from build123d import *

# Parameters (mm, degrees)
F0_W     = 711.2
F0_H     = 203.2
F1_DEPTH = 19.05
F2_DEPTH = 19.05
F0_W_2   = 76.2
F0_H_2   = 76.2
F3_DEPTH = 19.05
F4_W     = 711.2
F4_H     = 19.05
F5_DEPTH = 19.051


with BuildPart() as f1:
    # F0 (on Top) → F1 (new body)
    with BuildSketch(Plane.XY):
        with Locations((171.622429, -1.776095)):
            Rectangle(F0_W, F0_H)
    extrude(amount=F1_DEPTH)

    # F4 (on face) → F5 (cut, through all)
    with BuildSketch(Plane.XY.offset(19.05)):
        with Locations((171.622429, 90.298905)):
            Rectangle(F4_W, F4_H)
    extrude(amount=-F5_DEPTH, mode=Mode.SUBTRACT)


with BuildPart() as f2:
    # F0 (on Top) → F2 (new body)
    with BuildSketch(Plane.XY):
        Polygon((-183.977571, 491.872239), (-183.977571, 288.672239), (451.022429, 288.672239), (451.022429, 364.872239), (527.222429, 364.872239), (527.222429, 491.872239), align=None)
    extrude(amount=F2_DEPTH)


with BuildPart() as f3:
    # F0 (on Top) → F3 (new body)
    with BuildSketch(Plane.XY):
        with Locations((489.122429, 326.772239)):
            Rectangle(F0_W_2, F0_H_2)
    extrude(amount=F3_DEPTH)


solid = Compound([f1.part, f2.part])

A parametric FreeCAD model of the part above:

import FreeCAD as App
import Part
import Sketcher
Q = App.Units.Quantity


def add_polygon(sketch, points):
    """Adds a closed chain of lines whose ends are joined by coincident constraints."""
    first, n = sketch.GeometryCount, len(points)
    for a, b in zip(points, points[1:] + points[:1]):
        sketch.addGeometry(Part.LineSegment(App.Vector(*a, 0), App.Vector(*b, 0)), False)
    for i in range(n):
        sketch.addConstraint(Sketcher.Constraint("Coincident", first + i, 2, first + (i + 1) % n, 1))

doc = App.newDocument("Part")
body = doc.addObject("PartDesign::Body", "Body")

sketch1 = body.newObject("Sketcher::SketchObject", "Sketch")
sketch1.AttachmentSupport = (doc.getObject("XY_Plane"), [""])
sketch1.MapMode = "FlatFace"
add_polygon(sketch1, [(-183.977571, 99.823905), (-183.977571, -103.376095), (527.222429, -103.376095), (527.222429, 99.823905)])
sketch1.addConstraint([
    Sketcher.Constraint("Vertical", 0),
    Sketcher.Constraint("Horizontal", 1),
    Sketcher.Constraint("Vertical", 2),
    Sketcher.Constraint("Horizontal", 3),
    Sketcher.Constraint("DistanceX", 1, 1, 1, 2, Q("28 in")),
    Sketcher.Constraint("DistanceY", 0, 2, 0, 1, Q("8 in")),
    Sketcher.Constraint("DistanceX", 0, 2, -1, 1, Q("183.977571 mm")),
    Sketcher.Constraint("DistanceY", 0, 2, -1, 1, Q("103.376095 mm")),
])
pad1 = body.newObject("PartDesign::Pad", "Pad")
pad1.Profile = sketch1
pad1.Length = Q("0.75 in")

sketch2 = body.newObject("Sketcher::SketchObject", "Sketch001")
sketch2.AttachmentSupport = (doc.getObject("XY_Plane"), [""])
sketch2.MapMode = "FlatFace"
sketch2.AttachmentOffset = App.Placement(App.Vector(0, 0, 0.75 * 25.4), App.Rotation())
add_polygon(sketch2, [(-183.977571, 99.823905), (-183.977571, 80.773905), (527.222429, 80.773905), (527.222429, 99.823905)])
sketch2.addConstraint([
    Sketcher.Constraint("Vertical", 0),
    Sketcher.Constraint("Horizontal", 1),
    Sketcher.Constraint("Vertical", 2),
    Sketcher.Constraint("Horizontal", 3),
    Sketcher.Constraint("DistanceX", 1, 1, 1, 2, Q("28 in")),
    Sketcher.Constraint("DistanceY", 0, 2, 0, 1, Q("0.75 in")),
    Sketcher.Constraint("DistanceX", 0, 2, -1, 1, Q("183.977571 mm")),
    Sketcher.Constraint("DistanceY", -1, 1, 0, 2, Q("80.773905 mm")),
])
pocket1 = body.newObject("PartDesign::Pocket", "Pocket")
pocket1.Profile = sketch2
pocket1.Type = "ThroughAll"
body2 = doc.addObject("PartDesign::Body", "Body001")

sketch3 = body2.newObject("Sketcher::SketchObject", "Sketch002")
sketch3.AttachmentSupport = (doc.getObject("XY_Plane001"), [""])
sketch3.MapMode = "FlatFace"
add_polygon(sketch3, [(-183.977571, 491.872239), (-183.977571, 288.672239), (451.022429, 288.672239), (451.022429, 364.872239), (527.222429, 364.872239), (527.222429, 491.872239)])
sketch3.addConstraint([
    Sketcher.Constraint("Vertical", 0),
    Sketcher.Constraint("Horizontal", 1),
    Sketcher.Constraint("Vertical", 2),
    Sketcher.Constraint("Horizontal", 3),
    Sketcher.Constraint("Vertical", 4),
    Sketcher.Constraint("Horizontal", 5),
    Sketcher.Constraint("Equal", 3, 2),
    Sketcher.Constraint("DistanceX", 1, 1, 1, 2, Q("25 in")),
    Sketcher.Constraint("DistanceX", 3, 1, 3, 2, Q("3 in")),
    Sketcher.Constraint("DistanceY", 0, 2, 0, 1, Q("8 in")),
    Sketcher.Constraint("DistanceX", 0, 2, -1, 1, Q("183.977571 mm")),
    Sketcher.Constraint("DistanceY", -1, 1, 0, 2, Q("288.672239 mm")),
])
pad2 = body2.newObject("PartDesign::Pad", "Pad001")
pad2.Profile = sketch3
pad2.Length = Q("0.75 in")
body3 = doc.addObject("PartDesign::Body", "Body002")

sketch4 = body3.newObject("Sketcher::SketchObject", "Sketch003")
sketch4.AttachmentSupport = (doc.getObject("XY_Plane002"), [""])
sketch4.MapMode = "FlatFace"
add_polygon(sketch4, [(451.022429, 364.872239), (451.022429, 288.672239), (527.222429, 288.672239), (527.222429, 364.872239)])
sketch4.addConstraint([
    Sketcher.Constraint("Vertical", 0),
    Sketcher.Constraint("Horizontal", 1),
    Sketcher.Constraint("Vertical", 2),
    Sketcher.Constraint("Horizontal", 3),
    Sketcher.Constraint("Equal", 3, 0),
    Sketcher.Constraint("DistanceX", 1, 1, 1, 2, Q("3 in")),
    Sketcher.Constraint("DistanceX", -1, 1, 0, 2, Q("451.022429 mm")),
    Sketcher.Constraint("DistanceY", -1, 1, 0, 2, Q("288.672239 mm")),
])
pad3 = body3.newObject("PartDesign::Pad", "Pad002")
pad3.Profile = sketch4
pad3.Length = Q("0.75 in")
body3.Visibility = False

doc.recompute()
